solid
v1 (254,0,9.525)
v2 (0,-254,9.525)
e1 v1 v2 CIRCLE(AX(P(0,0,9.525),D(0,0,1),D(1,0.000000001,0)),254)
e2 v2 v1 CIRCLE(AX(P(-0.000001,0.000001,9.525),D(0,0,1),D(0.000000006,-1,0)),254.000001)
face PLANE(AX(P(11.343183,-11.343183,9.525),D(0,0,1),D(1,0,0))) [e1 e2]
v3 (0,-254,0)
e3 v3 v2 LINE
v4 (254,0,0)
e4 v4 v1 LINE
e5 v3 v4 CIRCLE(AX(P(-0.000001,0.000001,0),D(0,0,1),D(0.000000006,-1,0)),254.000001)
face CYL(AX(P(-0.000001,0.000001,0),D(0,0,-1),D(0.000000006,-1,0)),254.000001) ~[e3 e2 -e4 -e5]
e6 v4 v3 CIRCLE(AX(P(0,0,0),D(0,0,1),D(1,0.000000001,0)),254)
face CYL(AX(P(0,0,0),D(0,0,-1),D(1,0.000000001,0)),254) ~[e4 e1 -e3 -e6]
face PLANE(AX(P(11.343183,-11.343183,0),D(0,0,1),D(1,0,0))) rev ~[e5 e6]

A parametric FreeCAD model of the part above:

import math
import FreeCAD as App
import Part
import Sketcher
from FreeCAD import Vector
Q = App.Units.Quantity

doc = App.newDocument("Part")
params = doc.addObject("Spreadsheet::Sheet", "Params")
for row, (alias, value) in enumerate([
    ("sketch1_radius", "10.0000001 in"),
    ("pad1_length", "0.375 in"),
], start=1):
    params.set(f"A{row}", alias)
    params.set(f"B{row}", "=" + value)
    params.setAlias(f"B{row}", alias)

body = doc.addObject("PartDesign::Body", "Body")

# Sketch on XY plane
sketch1 = body.newObject("Sketcher::SketchObject", "Sketch")
sketch1.AttachmentSupport = (doc.getObject("XY_Plane"), [""])
sketch1.MapMode = "FlatFace"
sketch1.addGeometry([
    Part.ArcOfCircle(Part.Circle(Vector(0, 0, 0), Vector(0, 0, 1), 254), math.radians(-90), math.radians(0)),
    Part.ArcOfCircle(Part.Circle(Vector(0, 0, 0), Vector(0, 0, 1), 254), math.radians(0), math.radians(270)),
], False)
sketch1.addConstraint([
    Sketcher.Constraint("Tangent", 0, 1, 1, 2),
    Sketcher.Constraint("Coincident", 1, 1, 0, 2),
    Sketcher.Constraint("Coincident", 0, 3, -1, 1),
    Sketcher.Constraint("PointOnObject", 0, 1, -2),
    Sketcher.Constraint("PointOnObject", 1, 1, -1),
    Sketcher.Constraint("Radius", 0, Q("10.0000001 in")),
])
sketch1.setExpression("Constraints[5]", "Params.sketch1_radius")
pad1 = body.newObject("PartDesign::Pad", "Pad")
pad1.Profile = sketch1
pad1.setExpression("Length", "Params.pad1_length")

doc.recompute()
